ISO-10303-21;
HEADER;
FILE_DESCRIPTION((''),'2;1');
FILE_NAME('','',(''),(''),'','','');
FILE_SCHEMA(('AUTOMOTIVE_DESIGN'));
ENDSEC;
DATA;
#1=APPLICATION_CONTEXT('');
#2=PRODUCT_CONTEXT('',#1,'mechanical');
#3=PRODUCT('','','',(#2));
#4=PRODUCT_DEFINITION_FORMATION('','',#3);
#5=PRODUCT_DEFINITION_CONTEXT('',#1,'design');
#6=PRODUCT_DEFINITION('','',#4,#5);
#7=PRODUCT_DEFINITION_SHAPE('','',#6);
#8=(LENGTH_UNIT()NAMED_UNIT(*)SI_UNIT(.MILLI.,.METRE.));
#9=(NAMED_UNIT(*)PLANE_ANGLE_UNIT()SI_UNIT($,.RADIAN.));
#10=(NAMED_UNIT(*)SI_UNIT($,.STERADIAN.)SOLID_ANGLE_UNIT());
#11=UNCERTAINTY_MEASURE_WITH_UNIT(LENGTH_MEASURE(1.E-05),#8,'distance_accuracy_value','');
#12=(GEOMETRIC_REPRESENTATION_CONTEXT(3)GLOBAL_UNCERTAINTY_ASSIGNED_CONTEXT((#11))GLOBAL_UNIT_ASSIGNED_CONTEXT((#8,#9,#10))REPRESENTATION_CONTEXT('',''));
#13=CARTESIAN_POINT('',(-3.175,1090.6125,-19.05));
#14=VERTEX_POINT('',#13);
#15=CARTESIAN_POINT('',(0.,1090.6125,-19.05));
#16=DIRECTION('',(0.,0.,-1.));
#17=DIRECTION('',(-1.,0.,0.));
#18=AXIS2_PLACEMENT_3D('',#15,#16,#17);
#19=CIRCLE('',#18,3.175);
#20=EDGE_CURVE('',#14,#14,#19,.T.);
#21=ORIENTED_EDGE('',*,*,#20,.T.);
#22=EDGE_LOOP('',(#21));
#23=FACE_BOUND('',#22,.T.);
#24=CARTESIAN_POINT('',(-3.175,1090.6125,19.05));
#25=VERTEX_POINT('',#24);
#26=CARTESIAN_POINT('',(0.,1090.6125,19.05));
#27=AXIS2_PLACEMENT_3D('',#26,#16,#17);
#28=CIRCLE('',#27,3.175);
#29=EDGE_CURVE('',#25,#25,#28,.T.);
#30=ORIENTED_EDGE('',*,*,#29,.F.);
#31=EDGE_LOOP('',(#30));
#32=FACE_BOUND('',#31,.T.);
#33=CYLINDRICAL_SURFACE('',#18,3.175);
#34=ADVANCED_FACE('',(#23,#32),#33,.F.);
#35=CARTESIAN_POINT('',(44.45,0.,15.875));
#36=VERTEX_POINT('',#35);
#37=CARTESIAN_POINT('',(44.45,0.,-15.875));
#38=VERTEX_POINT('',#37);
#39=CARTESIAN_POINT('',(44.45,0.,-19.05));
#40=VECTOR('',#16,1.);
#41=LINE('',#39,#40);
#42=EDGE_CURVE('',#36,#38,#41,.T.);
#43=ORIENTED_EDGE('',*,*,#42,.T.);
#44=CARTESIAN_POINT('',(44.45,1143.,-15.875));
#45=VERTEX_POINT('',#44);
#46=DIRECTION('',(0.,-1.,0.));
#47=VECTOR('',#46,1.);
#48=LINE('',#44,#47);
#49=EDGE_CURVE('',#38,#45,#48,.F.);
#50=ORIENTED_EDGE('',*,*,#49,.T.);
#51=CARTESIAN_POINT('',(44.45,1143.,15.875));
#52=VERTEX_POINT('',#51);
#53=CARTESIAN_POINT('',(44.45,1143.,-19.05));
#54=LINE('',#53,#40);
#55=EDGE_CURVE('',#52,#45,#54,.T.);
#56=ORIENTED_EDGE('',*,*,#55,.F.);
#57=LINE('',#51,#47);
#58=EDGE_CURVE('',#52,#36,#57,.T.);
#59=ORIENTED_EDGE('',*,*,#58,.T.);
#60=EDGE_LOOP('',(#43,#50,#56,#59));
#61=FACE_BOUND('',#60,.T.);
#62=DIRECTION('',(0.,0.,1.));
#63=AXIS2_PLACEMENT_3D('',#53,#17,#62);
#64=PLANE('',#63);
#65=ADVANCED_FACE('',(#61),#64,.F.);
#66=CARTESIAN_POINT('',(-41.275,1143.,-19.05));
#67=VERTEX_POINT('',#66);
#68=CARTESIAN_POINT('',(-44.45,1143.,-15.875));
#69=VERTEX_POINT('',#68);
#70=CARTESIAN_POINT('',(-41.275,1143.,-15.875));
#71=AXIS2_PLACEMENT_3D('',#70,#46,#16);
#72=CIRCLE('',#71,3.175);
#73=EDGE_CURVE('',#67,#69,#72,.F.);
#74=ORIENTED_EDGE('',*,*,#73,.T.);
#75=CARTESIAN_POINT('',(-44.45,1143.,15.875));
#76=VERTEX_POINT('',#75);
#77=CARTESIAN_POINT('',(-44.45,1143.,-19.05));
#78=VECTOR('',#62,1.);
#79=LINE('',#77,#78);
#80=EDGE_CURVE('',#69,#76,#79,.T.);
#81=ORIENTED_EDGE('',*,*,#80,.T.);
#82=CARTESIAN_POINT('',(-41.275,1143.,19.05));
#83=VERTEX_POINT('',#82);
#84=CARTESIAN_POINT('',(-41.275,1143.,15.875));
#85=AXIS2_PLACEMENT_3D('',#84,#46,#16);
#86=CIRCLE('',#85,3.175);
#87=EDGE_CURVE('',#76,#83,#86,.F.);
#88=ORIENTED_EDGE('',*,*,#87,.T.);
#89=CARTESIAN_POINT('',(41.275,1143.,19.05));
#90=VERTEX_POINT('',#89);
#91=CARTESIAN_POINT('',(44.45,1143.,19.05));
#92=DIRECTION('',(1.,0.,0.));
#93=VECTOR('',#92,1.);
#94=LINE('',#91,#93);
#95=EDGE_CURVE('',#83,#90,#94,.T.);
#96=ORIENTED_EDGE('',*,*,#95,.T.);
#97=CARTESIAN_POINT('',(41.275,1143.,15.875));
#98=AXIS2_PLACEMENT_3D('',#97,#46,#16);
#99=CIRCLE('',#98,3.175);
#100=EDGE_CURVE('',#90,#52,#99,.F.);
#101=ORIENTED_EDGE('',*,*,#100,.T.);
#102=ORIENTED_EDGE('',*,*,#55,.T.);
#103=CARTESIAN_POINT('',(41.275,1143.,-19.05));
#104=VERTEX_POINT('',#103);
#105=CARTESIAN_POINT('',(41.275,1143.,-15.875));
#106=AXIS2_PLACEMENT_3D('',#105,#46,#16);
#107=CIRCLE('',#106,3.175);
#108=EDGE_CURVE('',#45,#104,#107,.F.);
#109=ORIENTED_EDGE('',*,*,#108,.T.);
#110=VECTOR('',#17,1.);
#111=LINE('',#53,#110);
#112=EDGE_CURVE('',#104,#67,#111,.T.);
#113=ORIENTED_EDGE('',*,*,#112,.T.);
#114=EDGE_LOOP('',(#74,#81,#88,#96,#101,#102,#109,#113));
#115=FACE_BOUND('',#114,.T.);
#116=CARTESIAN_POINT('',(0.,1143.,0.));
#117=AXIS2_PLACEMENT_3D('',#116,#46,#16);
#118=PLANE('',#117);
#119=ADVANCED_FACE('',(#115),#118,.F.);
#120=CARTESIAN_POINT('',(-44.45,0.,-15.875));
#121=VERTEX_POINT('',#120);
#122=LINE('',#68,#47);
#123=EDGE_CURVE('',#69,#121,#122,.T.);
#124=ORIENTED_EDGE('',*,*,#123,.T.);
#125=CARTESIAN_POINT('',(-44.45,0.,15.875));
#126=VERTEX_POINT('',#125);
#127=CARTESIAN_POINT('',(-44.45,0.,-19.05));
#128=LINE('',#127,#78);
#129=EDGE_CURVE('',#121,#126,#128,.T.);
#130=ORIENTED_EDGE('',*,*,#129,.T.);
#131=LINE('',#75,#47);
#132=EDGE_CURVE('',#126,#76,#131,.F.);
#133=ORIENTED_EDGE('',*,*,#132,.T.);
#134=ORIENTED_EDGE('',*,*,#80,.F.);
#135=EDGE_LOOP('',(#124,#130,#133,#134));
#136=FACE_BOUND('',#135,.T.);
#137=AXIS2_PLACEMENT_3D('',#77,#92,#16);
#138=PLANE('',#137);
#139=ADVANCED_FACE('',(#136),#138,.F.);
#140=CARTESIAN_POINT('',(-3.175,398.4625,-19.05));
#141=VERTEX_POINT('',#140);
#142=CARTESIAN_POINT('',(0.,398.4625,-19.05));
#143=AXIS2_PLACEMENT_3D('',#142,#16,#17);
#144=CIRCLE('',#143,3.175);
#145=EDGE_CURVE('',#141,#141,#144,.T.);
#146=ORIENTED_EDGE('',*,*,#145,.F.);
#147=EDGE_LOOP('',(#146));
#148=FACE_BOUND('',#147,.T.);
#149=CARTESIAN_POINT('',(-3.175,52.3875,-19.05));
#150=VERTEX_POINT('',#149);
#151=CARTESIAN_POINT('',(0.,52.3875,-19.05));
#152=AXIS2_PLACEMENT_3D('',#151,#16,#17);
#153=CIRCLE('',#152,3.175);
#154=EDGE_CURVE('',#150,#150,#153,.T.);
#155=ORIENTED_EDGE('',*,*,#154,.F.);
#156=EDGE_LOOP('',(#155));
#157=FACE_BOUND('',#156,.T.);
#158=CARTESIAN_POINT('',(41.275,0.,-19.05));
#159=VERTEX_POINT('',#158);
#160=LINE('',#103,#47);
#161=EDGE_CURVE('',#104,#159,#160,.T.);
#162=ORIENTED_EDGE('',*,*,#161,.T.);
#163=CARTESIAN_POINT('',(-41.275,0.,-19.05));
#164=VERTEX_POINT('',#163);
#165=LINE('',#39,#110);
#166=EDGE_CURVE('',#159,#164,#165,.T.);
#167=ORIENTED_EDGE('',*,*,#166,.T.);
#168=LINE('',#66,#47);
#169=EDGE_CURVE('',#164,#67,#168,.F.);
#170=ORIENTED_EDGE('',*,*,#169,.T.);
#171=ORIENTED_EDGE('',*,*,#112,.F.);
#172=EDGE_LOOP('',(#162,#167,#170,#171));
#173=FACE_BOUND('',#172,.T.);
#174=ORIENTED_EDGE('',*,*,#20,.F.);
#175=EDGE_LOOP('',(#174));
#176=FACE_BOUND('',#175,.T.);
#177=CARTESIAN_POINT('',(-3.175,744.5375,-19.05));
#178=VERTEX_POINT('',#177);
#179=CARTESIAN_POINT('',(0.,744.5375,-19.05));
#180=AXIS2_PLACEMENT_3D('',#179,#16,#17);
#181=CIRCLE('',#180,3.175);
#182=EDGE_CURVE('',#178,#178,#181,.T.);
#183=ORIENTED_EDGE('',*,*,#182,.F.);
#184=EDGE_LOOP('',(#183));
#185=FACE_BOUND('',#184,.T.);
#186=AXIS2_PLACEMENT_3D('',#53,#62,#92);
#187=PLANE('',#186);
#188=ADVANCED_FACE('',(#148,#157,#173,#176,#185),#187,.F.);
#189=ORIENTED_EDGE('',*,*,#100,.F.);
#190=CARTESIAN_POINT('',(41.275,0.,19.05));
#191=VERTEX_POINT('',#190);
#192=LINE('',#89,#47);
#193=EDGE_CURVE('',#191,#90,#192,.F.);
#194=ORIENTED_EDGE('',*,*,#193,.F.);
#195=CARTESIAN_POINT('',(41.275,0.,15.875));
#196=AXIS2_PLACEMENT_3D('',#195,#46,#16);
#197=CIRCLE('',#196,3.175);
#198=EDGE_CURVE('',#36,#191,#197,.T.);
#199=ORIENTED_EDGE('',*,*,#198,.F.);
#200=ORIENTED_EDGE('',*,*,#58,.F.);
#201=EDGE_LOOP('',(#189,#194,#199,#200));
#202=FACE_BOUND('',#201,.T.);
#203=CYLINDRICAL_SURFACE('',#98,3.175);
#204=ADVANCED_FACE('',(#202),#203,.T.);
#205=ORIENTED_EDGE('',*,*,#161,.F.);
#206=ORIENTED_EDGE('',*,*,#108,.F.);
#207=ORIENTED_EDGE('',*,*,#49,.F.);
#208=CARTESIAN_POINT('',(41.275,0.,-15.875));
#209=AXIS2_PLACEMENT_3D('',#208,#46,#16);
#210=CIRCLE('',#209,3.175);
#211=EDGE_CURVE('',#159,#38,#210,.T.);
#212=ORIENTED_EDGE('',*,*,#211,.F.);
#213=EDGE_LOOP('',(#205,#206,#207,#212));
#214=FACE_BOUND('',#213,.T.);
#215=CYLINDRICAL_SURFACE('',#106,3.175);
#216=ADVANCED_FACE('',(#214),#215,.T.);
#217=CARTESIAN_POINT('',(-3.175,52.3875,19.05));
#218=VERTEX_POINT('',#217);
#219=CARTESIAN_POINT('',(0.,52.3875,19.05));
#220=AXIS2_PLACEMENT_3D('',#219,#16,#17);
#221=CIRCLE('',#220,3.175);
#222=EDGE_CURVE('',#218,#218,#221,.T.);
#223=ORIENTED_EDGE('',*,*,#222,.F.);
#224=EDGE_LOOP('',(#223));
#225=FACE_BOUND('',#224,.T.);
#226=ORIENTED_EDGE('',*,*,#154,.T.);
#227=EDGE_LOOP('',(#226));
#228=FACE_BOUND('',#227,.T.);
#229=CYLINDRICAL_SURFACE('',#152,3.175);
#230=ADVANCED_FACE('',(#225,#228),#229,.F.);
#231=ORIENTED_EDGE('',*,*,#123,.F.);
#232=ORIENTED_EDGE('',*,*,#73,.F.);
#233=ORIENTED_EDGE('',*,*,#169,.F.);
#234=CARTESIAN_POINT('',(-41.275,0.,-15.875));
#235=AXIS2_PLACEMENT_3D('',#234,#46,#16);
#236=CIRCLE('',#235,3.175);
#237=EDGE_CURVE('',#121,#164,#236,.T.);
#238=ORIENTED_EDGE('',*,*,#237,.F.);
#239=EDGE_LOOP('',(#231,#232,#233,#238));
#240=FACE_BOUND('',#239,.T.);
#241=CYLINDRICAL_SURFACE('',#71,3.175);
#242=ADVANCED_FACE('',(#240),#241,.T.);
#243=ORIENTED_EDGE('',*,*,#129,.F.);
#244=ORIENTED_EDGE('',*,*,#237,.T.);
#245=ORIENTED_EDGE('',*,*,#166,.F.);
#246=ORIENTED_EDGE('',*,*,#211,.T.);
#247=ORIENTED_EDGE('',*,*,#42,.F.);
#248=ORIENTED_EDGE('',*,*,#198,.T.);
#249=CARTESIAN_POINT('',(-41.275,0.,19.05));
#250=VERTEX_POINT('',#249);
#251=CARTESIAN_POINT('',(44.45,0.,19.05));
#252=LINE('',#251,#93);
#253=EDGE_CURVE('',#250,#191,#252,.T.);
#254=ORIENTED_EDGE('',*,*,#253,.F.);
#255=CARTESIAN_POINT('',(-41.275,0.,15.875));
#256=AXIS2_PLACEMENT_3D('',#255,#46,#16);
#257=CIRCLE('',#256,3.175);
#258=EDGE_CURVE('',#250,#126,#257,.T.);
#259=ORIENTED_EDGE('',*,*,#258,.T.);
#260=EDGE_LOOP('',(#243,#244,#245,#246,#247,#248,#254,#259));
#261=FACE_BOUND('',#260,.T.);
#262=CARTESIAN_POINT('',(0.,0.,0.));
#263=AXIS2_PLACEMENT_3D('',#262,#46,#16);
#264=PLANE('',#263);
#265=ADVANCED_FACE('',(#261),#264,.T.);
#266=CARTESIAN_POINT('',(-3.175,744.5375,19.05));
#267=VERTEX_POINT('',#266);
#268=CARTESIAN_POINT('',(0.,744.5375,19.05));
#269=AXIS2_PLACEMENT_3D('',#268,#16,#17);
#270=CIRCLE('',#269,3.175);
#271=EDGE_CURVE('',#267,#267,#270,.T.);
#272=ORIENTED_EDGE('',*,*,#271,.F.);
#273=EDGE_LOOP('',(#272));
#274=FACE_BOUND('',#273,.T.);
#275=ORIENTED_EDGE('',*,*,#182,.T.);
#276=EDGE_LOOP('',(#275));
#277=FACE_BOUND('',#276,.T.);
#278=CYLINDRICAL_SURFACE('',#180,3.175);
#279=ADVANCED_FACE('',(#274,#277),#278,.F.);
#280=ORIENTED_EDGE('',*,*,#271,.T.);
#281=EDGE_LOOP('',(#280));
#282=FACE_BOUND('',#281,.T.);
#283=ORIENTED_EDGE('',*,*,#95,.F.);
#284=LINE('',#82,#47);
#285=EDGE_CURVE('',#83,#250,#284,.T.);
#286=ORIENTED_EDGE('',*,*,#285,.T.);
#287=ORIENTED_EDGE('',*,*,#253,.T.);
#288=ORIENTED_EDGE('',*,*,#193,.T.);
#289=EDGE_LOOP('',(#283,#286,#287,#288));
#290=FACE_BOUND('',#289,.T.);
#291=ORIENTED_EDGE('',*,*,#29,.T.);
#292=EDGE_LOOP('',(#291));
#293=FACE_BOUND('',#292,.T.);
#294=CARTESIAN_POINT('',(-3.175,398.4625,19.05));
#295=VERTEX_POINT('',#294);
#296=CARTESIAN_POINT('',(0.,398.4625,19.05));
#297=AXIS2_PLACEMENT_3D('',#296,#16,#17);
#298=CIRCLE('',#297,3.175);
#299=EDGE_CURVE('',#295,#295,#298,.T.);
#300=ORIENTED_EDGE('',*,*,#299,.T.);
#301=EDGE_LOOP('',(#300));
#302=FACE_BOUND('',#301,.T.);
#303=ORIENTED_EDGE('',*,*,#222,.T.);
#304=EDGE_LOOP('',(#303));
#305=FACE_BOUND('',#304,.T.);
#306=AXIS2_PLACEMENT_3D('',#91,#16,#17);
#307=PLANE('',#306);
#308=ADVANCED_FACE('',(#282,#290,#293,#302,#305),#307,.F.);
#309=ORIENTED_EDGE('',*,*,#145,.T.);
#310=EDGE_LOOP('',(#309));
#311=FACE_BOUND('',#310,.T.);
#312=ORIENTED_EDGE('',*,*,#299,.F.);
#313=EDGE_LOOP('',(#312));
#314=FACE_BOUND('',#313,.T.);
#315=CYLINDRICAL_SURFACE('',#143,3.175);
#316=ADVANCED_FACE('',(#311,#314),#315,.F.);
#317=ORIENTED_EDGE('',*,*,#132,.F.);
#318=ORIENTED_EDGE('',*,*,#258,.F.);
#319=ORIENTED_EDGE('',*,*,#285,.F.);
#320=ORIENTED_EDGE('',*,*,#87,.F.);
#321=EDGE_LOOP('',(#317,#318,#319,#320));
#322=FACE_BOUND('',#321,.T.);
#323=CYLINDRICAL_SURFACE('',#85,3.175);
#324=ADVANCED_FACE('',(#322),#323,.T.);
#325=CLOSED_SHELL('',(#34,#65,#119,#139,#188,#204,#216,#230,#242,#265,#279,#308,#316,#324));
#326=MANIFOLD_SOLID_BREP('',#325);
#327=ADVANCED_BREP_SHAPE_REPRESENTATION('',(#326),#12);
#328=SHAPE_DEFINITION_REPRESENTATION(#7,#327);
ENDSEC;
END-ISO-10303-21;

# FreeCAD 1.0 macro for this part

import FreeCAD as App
import Part
import Sketcher
Q = App.Units.Quantity


def edges_at(feature, points):
    """Names of the edges that pass closest to the given points."""
    edges = feature.Shape.Edges
    near = lambda p: min(range(len(edges)), key=lambda i: edges[i].distToShape(Part.Vertex(*p))[0])
    return sorted({f"Edge{near(p) + 1}" for p in points})

doc = App.newDocument("Part")
params = doc.addObject("Spreadsheet::Sheet", "Params")
for row, (alias, value) in enumerate([
    ("sketch1_width", "3.5 in"),
    ("sketch1_height", "1.5 in"),
    ("pad1_length", "45 in"),
    ("sketch2_diameter", "0.25 in"),
    ("hole_diameter", "0.25 in"),
    ("fillet_radius", "0.125 in"),
], start=1):
    params.set(f"A{row}", alias)
    params.set(f"B{row}", "=" + value)
    params.setAlias(f"B{row}", alias)

body = doc.addObject("PartDesign::Body", "Body")

# Sketch on XZ plane
sketch1 = body.newObject("Sketcher::SketchObject", "Sketch")
sketch1.AttachmentSupport = (doc.getObject("XZ_Plane"), [""])
sketch1.MapMode = "FlatFace"
sketch1.addGeometry([
    Part.LineSegment(App.Vector(-44, -19, 0), App.Vector(-44, 19, 0)),
    Part.LineSegment(App.Vector(-44, 19, 0), App.Vector(44, 19, 0)),
    Part.LineSegment(App.Vector(44, 19, 0), App.Vector(44, -19, 0)),
    Part.LineSegment(App.Vector(44, -19, 0), App.Vector(-44, -19, 0)),
], False)
sketch1.addConstraint([
    Sketcher.Constraint("Coincident", 0, 2, 1, 1),
    Sketcher.Constraint("Coincident", 1, 2, 2, 1),
    Sketcher.Constraint("Coincident", 2, 2, 3, 1),
    Sketcher.Constraint("Coincident", 3, 2, 0, 1),
    Sketcher.Constraint("Vertical", 0),
    Sketcher.Constraint("Horizontal", 1),
    Sketcher.Constraint("Vertical", 2),
    Sketcher.Constraint("Horizontal", 3),
    Sketcher.Constraint("Symmetric", 0, 2, 2, 2, -1, 1),
    Sketcher.Constraint("DistanceX", 1, 1, 1, 2, Q("3.5 in")),
    Sketcher.Constraint("DistanceY", 0, 1, 0, 2, Q("1.5 in")),
])
sketch1.setExpression("Constraints[9]", "Params.sketch1_width")
sketch1.setExpression("Constraints[10]", "Params.sketch1_height")
pad1 = body.newObject("PartDesign::Pad", "Pad")
pad1.Profile = sketch1
pad1.setExpression("Length", "Params.pad1_length")
pad1.Reversed = True

# Sketch on XY plane
sketch2 = body.newObject("Sketcher::SketchObject", "Sketch001")
sketch2.AttachmentSupport = (doc.getObject("XY_Plane"), [""])
sketch2.MapMode = "FlatFace"
sketch2.AttachmentOffset = App.Placement(App.Vector(0, 0, -0.75 * 25.4), App.Rotation())
sketch2.addGeometry([
    Part.Circle(App.Vector(0, 52.4, 0), App.Vector(0, 0, 1), 3.2),
    Part.Circle(App.Vector(0, 398.5, 0), App.Vector(0, 0, 1), 3.2),
    Part.Circle(App.Vector(0, 744.5, 0), App.Vector(0, 0, 1), 3.2),
    Part.Circle(App.Vector(0, 1090.6, 0), App.Vector(0, 0, 1), 3.2),
], False)
sketch2.addConstraint([
    Sketcher.Constraint("Equal", 0, 1),
    Sketcher.Constraint("Equal", 1, 2),
    Sketcher.Constraint("Equal", 2, 3),
    Sketcher.Constraint("PointOnObject", 0, 3, -2),
    Sketcher.Constraint("PointOnObject", 1, 3, -2),
    Sketcher.Constraint("PointOnObject", 2, 3, -2),
    Sketcher.Constraint("PointOnObject", 3, 3, -2),
    Sketcher.Constraint("Diameter", 0, Q("0.25 in")),
    Sketcher.Constraint("DistanceY", 0, 3, 2, 3, Q("27.25 in")),
    Sketcher.Constraint("DistanceY", 1, 3, 3, 3, Q("27.25 in")),
    Sketcher.Constraint("DistanceY", -1, 1, 0, 3, Q("2.0625 in")),
    Sketcher.Constraint("DistanceY", -1, 1, 1, 3, Q("15.6875 in")),
])
sketch2.setExpression("Constraints[7]", "Params.sketch2_diameter")
doc.recompute()
hole = body.newObject("PartDesign::Hole", "Hole")
hole.Profile = sketch2
hole.ThreadType = "None"
hole.setExpression("Diameter", "Params.hole_diameter")
hole.DepthType = "ThroughAll"
hole.Reversed = True
doc.recompute()

fillet = body.newObject("PartDesign::Fillet", "Fillet")
fillet.Base = (hole, edges_at(hole, [
    (-44.45, 571.5, -19.05),
    (44.45, 571.5, -19.05),
    (44.45, 571.5, 19.05),
    (-44.45, 571.5, 19.05),
]))
fillet.setExpression("Radius", "Params.fillet_radius")

doc.recompute()
